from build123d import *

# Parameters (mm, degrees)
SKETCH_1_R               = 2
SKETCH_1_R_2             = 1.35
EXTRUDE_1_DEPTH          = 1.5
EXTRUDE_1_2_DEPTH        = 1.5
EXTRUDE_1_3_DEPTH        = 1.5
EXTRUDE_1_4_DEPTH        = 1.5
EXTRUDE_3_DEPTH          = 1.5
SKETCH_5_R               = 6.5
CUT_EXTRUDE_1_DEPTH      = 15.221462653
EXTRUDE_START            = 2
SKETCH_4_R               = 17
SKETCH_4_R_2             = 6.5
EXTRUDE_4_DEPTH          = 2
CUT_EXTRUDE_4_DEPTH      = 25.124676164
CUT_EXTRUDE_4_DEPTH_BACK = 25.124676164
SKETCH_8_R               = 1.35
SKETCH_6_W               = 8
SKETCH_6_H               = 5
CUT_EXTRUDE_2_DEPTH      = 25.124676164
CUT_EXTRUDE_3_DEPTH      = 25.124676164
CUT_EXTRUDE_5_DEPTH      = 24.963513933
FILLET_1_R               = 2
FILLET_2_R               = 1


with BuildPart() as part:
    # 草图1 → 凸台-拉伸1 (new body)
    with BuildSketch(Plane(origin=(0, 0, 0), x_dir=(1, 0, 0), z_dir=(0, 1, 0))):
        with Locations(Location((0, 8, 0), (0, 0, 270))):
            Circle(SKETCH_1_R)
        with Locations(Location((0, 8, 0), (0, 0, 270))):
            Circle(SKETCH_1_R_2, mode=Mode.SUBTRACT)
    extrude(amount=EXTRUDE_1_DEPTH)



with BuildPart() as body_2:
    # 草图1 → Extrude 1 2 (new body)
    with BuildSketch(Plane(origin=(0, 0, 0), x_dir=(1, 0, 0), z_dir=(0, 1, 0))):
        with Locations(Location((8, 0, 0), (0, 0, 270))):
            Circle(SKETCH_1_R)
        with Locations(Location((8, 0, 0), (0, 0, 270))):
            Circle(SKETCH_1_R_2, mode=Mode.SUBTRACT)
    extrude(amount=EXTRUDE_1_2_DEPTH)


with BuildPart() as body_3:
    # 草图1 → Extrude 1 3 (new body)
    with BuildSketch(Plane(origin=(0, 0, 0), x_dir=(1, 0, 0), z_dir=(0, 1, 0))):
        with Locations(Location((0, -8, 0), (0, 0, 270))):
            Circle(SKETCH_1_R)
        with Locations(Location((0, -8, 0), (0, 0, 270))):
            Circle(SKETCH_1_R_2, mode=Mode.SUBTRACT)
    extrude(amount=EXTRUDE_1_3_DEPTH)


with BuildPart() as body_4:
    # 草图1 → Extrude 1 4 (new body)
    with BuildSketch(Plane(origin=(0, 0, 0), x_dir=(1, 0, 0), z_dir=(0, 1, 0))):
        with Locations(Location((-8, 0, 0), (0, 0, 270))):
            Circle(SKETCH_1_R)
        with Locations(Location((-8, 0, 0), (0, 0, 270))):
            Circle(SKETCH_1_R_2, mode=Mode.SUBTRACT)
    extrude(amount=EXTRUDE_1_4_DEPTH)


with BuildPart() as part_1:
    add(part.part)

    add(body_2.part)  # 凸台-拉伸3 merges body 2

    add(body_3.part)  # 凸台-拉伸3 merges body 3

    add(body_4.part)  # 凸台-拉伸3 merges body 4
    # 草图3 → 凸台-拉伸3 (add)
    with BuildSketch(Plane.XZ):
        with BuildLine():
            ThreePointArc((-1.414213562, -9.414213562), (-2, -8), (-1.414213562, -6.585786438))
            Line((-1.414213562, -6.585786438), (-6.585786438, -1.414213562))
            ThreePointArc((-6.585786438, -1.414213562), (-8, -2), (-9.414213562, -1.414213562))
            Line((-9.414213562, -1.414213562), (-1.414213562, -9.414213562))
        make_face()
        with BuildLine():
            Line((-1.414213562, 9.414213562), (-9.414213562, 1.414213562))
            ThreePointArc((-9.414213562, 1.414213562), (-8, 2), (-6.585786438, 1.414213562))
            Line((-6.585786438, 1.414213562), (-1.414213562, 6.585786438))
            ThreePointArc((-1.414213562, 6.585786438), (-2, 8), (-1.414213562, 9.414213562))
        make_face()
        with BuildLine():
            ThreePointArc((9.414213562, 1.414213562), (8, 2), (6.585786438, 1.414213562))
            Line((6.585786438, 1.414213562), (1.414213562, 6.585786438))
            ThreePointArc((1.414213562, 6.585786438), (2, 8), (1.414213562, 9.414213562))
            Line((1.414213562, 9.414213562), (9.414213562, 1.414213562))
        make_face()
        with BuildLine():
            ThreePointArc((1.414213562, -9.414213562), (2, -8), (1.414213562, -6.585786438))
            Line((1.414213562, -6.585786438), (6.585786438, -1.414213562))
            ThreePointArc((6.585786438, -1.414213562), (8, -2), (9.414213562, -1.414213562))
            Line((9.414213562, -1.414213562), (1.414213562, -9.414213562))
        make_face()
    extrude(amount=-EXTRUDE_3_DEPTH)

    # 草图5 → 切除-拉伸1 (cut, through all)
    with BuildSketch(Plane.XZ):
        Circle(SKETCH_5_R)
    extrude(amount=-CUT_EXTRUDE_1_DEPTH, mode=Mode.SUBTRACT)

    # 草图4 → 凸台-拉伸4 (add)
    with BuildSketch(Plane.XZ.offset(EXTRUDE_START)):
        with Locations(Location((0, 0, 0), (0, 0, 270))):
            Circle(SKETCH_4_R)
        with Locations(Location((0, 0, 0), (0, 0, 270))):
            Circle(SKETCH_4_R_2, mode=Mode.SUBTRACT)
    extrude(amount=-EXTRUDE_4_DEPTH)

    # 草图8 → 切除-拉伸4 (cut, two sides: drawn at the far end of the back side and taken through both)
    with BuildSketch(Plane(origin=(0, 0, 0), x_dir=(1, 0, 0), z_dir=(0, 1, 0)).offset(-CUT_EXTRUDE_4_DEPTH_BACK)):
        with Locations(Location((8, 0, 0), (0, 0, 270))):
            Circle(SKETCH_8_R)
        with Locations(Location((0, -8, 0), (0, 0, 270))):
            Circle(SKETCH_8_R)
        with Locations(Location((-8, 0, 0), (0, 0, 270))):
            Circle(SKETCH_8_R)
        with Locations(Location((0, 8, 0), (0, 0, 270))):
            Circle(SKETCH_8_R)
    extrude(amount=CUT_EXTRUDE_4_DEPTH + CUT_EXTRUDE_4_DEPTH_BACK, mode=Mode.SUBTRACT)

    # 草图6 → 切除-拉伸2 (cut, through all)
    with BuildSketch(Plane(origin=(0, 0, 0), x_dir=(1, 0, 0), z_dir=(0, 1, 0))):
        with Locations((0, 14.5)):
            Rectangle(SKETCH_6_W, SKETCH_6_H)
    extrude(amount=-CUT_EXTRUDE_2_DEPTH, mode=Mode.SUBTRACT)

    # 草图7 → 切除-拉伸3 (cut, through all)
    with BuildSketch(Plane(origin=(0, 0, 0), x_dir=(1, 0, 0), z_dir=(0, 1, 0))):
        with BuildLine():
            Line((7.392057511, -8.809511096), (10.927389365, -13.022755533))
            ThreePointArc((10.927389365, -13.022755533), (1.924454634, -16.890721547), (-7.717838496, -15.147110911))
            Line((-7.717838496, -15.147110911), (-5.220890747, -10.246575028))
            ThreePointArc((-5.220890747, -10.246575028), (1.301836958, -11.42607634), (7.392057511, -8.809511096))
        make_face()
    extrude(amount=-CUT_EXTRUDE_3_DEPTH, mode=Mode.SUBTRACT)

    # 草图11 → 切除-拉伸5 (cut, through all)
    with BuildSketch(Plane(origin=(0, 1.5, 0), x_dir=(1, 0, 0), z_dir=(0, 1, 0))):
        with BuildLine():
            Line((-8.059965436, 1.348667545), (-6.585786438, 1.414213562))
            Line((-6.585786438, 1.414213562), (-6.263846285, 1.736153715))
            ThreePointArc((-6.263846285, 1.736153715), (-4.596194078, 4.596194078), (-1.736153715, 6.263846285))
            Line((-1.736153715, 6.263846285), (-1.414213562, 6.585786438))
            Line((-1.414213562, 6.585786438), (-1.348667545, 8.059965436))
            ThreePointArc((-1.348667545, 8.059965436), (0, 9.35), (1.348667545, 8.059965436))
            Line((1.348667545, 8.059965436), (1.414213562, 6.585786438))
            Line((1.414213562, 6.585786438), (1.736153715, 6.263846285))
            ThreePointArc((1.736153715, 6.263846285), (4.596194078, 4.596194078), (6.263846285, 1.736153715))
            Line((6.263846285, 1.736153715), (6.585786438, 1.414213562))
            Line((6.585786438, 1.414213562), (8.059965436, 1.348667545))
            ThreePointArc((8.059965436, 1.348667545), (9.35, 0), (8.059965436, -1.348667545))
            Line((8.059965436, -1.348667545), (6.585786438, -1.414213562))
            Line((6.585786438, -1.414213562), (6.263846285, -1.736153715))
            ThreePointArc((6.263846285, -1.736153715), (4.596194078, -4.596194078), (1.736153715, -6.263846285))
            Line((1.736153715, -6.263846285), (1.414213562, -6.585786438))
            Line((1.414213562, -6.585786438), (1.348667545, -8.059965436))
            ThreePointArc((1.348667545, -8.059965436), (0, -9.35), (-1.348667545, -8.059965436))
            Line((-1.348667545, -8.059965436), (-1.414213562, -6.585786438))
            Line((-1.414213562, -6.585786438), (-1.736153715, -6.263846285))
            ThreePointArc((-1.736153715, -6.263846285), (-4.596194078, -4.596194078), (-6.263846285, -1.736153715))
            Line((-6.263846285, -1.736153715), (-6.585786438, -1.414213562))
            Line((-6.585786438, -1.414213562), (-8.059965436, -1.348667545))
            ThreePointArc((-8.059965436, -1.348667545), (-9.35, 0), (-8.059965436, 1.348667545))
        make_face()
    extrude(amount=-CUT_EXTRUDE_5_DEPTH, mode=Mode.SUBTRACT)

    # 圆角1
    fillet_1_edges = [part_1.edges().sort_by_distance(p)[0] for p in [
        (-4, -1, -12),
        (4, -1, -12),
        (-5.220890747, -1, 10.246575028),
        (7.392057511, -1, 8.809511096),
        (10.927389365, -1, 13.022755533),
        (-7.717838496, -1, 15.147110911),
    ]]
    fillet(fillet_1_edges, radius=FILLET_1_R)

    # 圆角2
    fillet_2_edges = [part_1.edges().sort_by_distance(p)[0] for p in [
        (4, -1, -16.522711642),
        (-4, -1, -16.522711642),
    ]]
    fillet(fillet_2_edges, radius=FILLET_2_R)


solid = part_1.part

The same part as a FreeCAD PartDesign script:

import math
import FreeCAD as App
import Part
import Sketcher
Q = App.Units.Quantity


def edges_at(feature, points):
    """Names of the edges that pass closest to the given points."""
    edges = feature.Shape.Edges
    near = lambda p: min(range(len(edges)), key=lambda i: edges[i].distToShape(Part.Vertex(*p))[0])
    return sorted({f"Edge{near(p) + 1}" for p in points})


def add_polygon(sketch, points):
    """Adds a closed chain of lines whose ends are joined by coincident constraints."""
    first, n = sketch.GeometryCount, len(points)
    for a, b in zip(points, points[1:] + points[:1]):
        sketch.addGeometry(Part.LineSegment(App.Vector(*a, 0), App.Vector(*b, 0)), False)
    for i in range(n):
        sketch.addConstraint(Sketcher.Constraint("Coincident", first + i, 2, first + (i + 1) % n, 1))

doc = App.newDocument("Part")
body = doc.addObject("PartDesign::Body", "Body")

sketch1 = body.newObject("Sketcher::SketchObject", "Sketch")
sketch1.AttachmentSupport = (doc.getObject("XZ_Plane"), [""])
sketch1.MapMode = "FlatFace"
sketch1.addGeometry([
    Part.Circle(App.Vector(0, -8, 0), App.Vector(0, 0, 1), 2),
    Part.Circle(App.Vector(0, -8, 0), App.Vector(0, 0, 1), 1.35),
], False)
sketch1.addConstraint([
    Sketcher.Constraint("Coincident", 1, 3, 0, 3),
    Sketcher.Constraint("PointOnObject", 0, 3, -2),
    Sketcher.Constraint("Diameter", 0, 4.0),
    Sketcher.Constraint("Diameter", 1, 2.7),
    Sketcher.Constraint("DistanceY", 0, 3, -1, 1, 8.0),
])
pad1 = body.newObject("PartDesign::Pad", "Pad")
pad1.Profile = sketch1
pad1.Length = 1.5
pad1.Reversed = True
body2 = doc.addObject("PartDesign::Body", "Body001")

sketch2 = body2.newObject("Sketcher::SketchObject", "Sketch001")
sketch2.AttachmentSupport = (doc.getObject("XZ_Plane001"), [""])
sketch2.MapMode = "FlatFace"
sketch2.addGeometry([
    Part.Circle(App.Vector(8, 0, 0), App.Vector(0, 0, 1), 2),
    Part.Circle(App.Vector(8, 0, 0), App.Vector(0, 0, 1), 1.35),
], False)
sketch2.addConstraint([
    Sketcher.Constraint("Coincident", 1, 3, 0, 3),
    Sketcher.Constraint("PointOnObject", 0, 3, -1),
    Sketcher.Constraint("Diameter", 0, 4.0),
    Sketcher.Constraint("Diameter", 1, 2.7),
    Sketcher.Constraint("DistanceX", -1, 1, 0, 3, 8.0),
])
pad2 = body2.newObject("PartDesign::Pad", "Pad001")
pad2.Profile = sketch2
pad2.Length = 1.5
pad2.Reversed = True
body3 = doc.addObject("PartDesign::Body", "Body002")

sketch3 = body3.newObject("Sketcher::SketchObject", "Sketch002")
sketch3.AttachmentSupport = (doc.getObject("XZ_Plane002"), [""])
sketch3.MapMode = "FlatFace"
sketch3.addGeometry([
    Part.Circle(App.Vector(0, 8, 0), App.Vector(0, 0, 1), 2),
    Part.Circle(App.Vector(0, 8, 0), App.Vector(0, 0, 1), 1.35),
], False)
sketch3.addConstraint([
    Sketcher.Constraint("Coincident", 1, 3, 0, 3),
    Sketcher.Constraint("PointOnObject", 0, 3, -2),
    Sketcher.Constraint("Diameter", 0, 4.0),
    Sketcher.Constraint("Diameter", 1, 2.7),
    Sketcher.Constraint("DistanceY", -1, 1, 0, 3, 8.0),
])
pad3 = body3.newObject("PartDesign::Pad", "Pad002")
pad3.Profile = sketch3
pad3.Length = 1.5
pad3.Reversed = True
body4 = doc.addObject("PartDesign::Body", "Body003")

sketch4 = body4.newObject("Sketcher::SketchObject", "Sketch003")
sketch4.AttachmentSupport = (doc.getObject("XZ_Plane003"), [""])
sketch4.MapMode = "FlatFace"
sketch4.addGeometry([
    Part.Circle(App.Vector(-8, 0, 0), App.Vector(0, 0, 1), 2),
    Part.Circle(App.Vector(-8, 0, 0), App.Vector(0, 0, 1), 1.35),
], False)
sketch4.addConstraint([
    Sketcher.Constraint("Coincident", 1, 3, 0, 3),
    Sketcher.Constraint("PointOnObject", 0, 3, -1),
    Sketcher.Constraint("Diameter", 0, 4.0),
    Sketcher.Constraint("Diameter", 1, 2.7),
    Sketcher.Constraint("DistanceX", 0, 3, -1, 1, 8.0),
])
pad4 = body4.newObject("PartDesign::Pad", "Pad003")
pad4.Profile = sketch4
pad4.Length = 1.5
pad4.Reversed = True
body.AllowCompound = True
doc.recompute()

boolean = body.newObject("PartDesign::Boolean", "Boolean")
boolean.Type = "Fuse"
boolean.addObjects([body2])
doc.recompute()

boolean2 = body.newObject("PartDesign::Boolean", "Boolean001")
boolean2.Type = "Fuse"
boolean2.addObjects([body3])
doc.recompute()

boolean3 = body.newObject("PartDesign::Boolean", "Boolean002")
boolean3.Type = "Fuse"
boolean3.addObjects([body4])

sketch5 = body.newObject("Sketcher::SketchObject", "Sketch004")
sketch5.AttachmentSupport = (doc.getObject("XZ_Plane"), [""])
sketch5.MapMode = "FlatFace"
sketch5.addGeometry([
    Part.ArcOfCircle(Part.Circle(App.Vector(0, -8, 0), App.Vector(0, 0, 1), 2), math.radians(135), math.radians(225)),
    Part.LineSegment(App.Vector(-1.414214, -6.585786, 0), App.Vector(-6.585786, -1.414214, 0)),
    Part.ArcOfCircle(Part.Circle(App.Vector(-8, 0, 0), App.Vector(0, 0, 1), 2), math.radians(-135), math.radians(-45)),
    Part.LineSegment(App.Vector(-9.414214, -1.414214, 0), App.Vector(-1.414214, -9.414214, 0)),
    Part.LineSegment(App.Vector(-1.414214, 9.414214, 0), App.Vector(-9.414214, 1.414214, 0)),
    Part.ArcOfCircle(Part.Circle(App.Vector(-8, 0, 0), App.Vector(0, 0, 1), 2), math.radians(45), math.radians(135)),
    Part.LineSegment(App.Vector(-6.585786, 1.414214, 0), App.Vector(-1.414214, 6.585786, 0)),
    Part.ArcOfCircle(Part.Circle(App.Vector(0, 8, 0), App.Vector(0, 0, 1), 2), math.radians(135), math.radians(225)),
    Part.ArcOfCircle(Part.Circle(App.Vector(8, 0, 0), App.Vector(0, 0, 1), 2), math.radians(45), math.radians(135)),
    Part.LineSegment(App.Vector(9.414214, 1.414214, 0), App.Vector(1.414214, 9.414214, 0)),
    Part.ArcOfCircle(Part.Circle(App.Vector(0, 8, 0), App.Vector(0, 0, 1), 2), math.radians(-45), math.radians(45)),
    Part.LineSegment(App.Vector(1.414214, 6.585786, 0), App.Vector(6.585786, 1.414214, 0)),
    Part.ArcOfCircle(Part.Circle(App.Vector(0, -8, 0), App.Vector(0, 0, 1), 2), math.radians(-45), math.radians(45)),
    Part.LineSegment(App.Vector(1.414214, -9.414214, 0), App.Vector(9.414214, -1.414214, 0)),
    Part.ArcOfCircle(Part.Circle(App.Vector(8, 0, 0), App.Vector(0, 0, 1), 2), math.radians(-135), math.radians(-45)),
    Part.LineSegment(App.Vector(6.585786, -1.414214, 0), App.Vector(1.414214, -6.585786, 0)),
], False)
sketch5.addConstraint([
    Sketcher.Constraint("Coincident", 0, 1, 1, 1),
    Sketcher.Constraint("Coincident", 1, 2, 2, 2),
    Sketcher.Constraint("Tangent", 2, 1, 3, 1),
    Sketcher.Constraint("Tangent", 3, 2, 0, 2),
    Sketcher.Constraint("Tangent", 4, 2, 5, 2),
    Sketcher.Constraint("Coincident", 5, 1, 6, 1),
    Sketcher.Constraint("Coincident", 6, 2, 7, 2),
    Sketcher.Constraint("Tangent", 7, 1, 4, 1),
    Sketcher.Constraint("Tangent", 8, 1, 9, 1),
    Sketcher.Constraint("Tangent", 9, 2, 10, 2),
    Sketcher.Constraint("Coincident", 10, 1, 11, 1),
    Sketcher.Constraint("Coincident", 11, 2, 8, 2),
    Sketcher.Constraint("Tangent", 12, 1, 13, 1),
    Sketcher.Constraint("Tangent", 13, 2, 14, 2),
    Sketcher.Constraint("Coincident", 14, 1, 15, 1),
    Sketcher.Constraint("Coincident", 15, 2, 12, 2),
    Sketcher.Constraint("Coincident", 5, 3, 2, 3),
    Sketcher.Constraint("Coincident", 10, 3, 7, 3),
    Sketcher.Constraint("Coincident", 12, 3, 0, 3),
    Sketcher.Constraint("Coincident", 14, 3, 8, 3),
    Sketcher.Constraint("Equal", 0, 2),
    Sketcher.Constraint("Equal", 2, 5),
    Sketcher.Constraint("Equal", 5, 7),
    Sketcher.Constraint("Equal", 7, 8),
    Sketcher.Constraint("Equal", 8, 10),
    Sketcher.Constraint("Equal", 10, 12),
    Sketcher.Constraint("Equal", 12, 14),
    Sketcher.Constraint("Symmetric", 0, 3, 7, 3, -1, 1),
    Sketcher.Constraint("Symmetric", 2, 3, 8, 3, -1, 1),
    Sketcher.Constraint("Symmetric", 4, 2, 8, 1, -2),
    Sketcher.Constraint("Parallel", 1, 3),
    Sketcher.Constraint("Perpendicular", 3, 4),
    Sketcher.Constraint("Parallel", 4, 6),
    Sketcher.Constraint("Parallel", 9, 11),
    Sketcher.Constraint("Parallel", 13, 15),
    Sketcher.Constraint("Horizontal", 1, 2, 2, 1),
    Sketcher.Constraint("Horizontal", 4, 2, 5, 1),
    Sketcher.Constraint("Horizontal", 6, 2, 10, 1),
    Sketcher.Constraint("Horizontal", 13, 2, 14, 1),
    Sketcher.Constraint("Radius", 0, 2.0),
    Sketcher.Constraint("DistanceY", 0, 3, -1, 1, 8.0),
])
pad5 = body.newObject("PartDesign::Pad", "Pad004")
pad5.Profile = sketch5
pad5.Length = 1.5
pad5.Reversed = True

sketch6 = body.newObject("Sketcher::SketchObject", "Sketch005")
sketch6.AttachmentSupport = (doc.getObject("XZ_Plane"), [""])
sketch6.MapMode = "FlatFace"
sketch6.addGeometry(Part.Circle(App.Vector(0, 0, 0), App.Vector(0, 0, 1), 6.5), False)
sketch6.addConstraint([
    Sketcher.Constraint("Coincident", 0, 3, -1, 1),
    Sketcher.Constraint("Diameter", 0, 13.0),
])
pocket1 = body.newObject("PartDesign::Pocket", "Pocket")
pocket1.Profile = sketch6
pocket1.Type = "ThroughAll"

sketch7 = body.newObject("Sketcher::SketchObject", "Sketch006")
sketch7.AttachmentSupport = (doc.getObject("XZ_Plane"), [""])
sketch7.MapMode = "FlatFace"
sketch7.AttachmentOffset = App.Placement(App.Vector(0, 0, 2), App.Rotation())
sketch7.addGeometry([
    Part.Circle(App.Vector(0, 0, 0), App.Vector(0, 0, 1), 17),
    Part.Circle(App.Vector(0, 0, 0), App.Vector(0, 0, 1), 6.5),
], False)
sketch7.addConstraint([
    Sketcher.Constraint("Coincident", 0, 3, -1, 1),
    Sketcher.Constraint("Coincident", 1, 3, -1, 1),
    Sketcher.Constraint("Diameter", 0, 34.0),
    Sketcher.Constraint("Diameter", 1, 13.0),
])
pad6 = body.newObject("PartDesign::Pad", "Pad005")
pad6.Profile = sketch7
pad6.Length = 2
pad6.Reversed = True

sketch8 = body.newObject("Sketcher::SketchObject", "Sketch007")
sketch8.AttachmentSupport = (doc.getObject("XZ_Plane"), [""])
sketch8.MapMode = "FlatFace"
sketch8.addGeometry([
    Part.Circle(App.Vector(8, 0, 0), App.Vector(0, 0, 1), 1.35),
    Part.Circle(App.Vector(0, 8, 0), App.Vector(0, 0, 1), 1.35),
    Part.Circle(App.Vector(-8, 0, 0), App.Vector(0, 0, 1), 1.35),
    Part.Circle(App.Vector(0, -8, 0), App.Vector(0, 0, 1), 1.35),
], False)
sketch8.addConstraint([
    Sketcher.Constraint("Equal", 0, 1),
    Sketcher.Constraint("Equal", 1, 2),
    Sketcher.Constraint("Equal", 2, 3),
    Sketcher.Constraint("Symmetric", 0, 3, 2, 3, -1, 1),
    Sketcher.Constraint("Symmetric", 1, 3, 3, 3, -1, 1),
    Sketcher.Constraint("PointOnObject", 0, 3, -1),
    Sketcher.Constraint("PointOnObject", 1, 3, -2),
    Sketcher.Constraint("Diameter", 0, 2.7),
    Sketcher.Constraint("DistanceX", -1, 1, 0, 3, 8.0),
    Sketcher.Constraint("DistanceY", -1, 1, 1, 3, 8.0),
])
pocket2 = body.newObject("PartDesign::Pocket", "Pocket001")
pocket2.Profile = sketch8
pocket2.Type = "ThroughAll"
pocket2.Midplane = True

sketch9 = body.newObject("Sketcher::SketchObject", "Sketch008")
sketch9.AttachmentSupport = (doc.getObject("XZ_Plane"), [""])
sketch9.MapMode = "FlatFace"
add_polygon(sketch9, [(-4, -17), (-4, -12), (4, -12), (4, -17)])
sketch9.addConstraint([
    Sketcher.Constraint("Vertical", 0),
    Sketcher.Constraint("Horizontal", 1),
    Sketcher.Constraint("Vertical", 2),
    Sketcher.Constraint("Horizontal", 3),
    Sketcher.Constraint("DistanceX", 1, 1, 1, 2, 8.0),
    Sketcher.Constraint("DistanceY", 0, 1, 0, 2, 5.0),
    Sketcher.Constraint("DistanceX", 0, 2, -1, 1, 4.0),
    Sketcher.Constraint("DistanceY", 0, 2, -1, 1, 12.0),
])
pocket3 = body.newObject("PartDesign::Pocket", "Pocket002")
pocket3.Profile = sketch9
pocket3.Type = "ThroughAll"
pocket3.Reversed = True

sketch10 = body.newObject("Sketcher::SketchObject", "Sketch009")
sketch10.AttachmentSupport = (doc.getObject("XZ_Plane"), [""])
sketch10.MapMode = "FlatFace"
sketch10.addGeometry([
    Part.LineSegment(App.Vector(10.927389, 13.022756, 0), App.Vector(7.392058, 8.809511, 0)),
    Part.ArcOfCircle(Part.Circle(App.Vector(0, 0, 0), App.Vector(0, 0, 1), 11.5), math.radians(50), math.radians(117)),
    Part.LineSegment(App.Vector(-5.220891, 10.246575, 0), App.Vector(-7.717838, 15.147111, 0)),
    Part.ArcOfCircle(Part.Circle(App.Vector(0, 0, 0), App.Vector(0, 0, 1), 17), math.radians(50), math.radians(117)),
], False)
sketch10.addConstraint([
    Sketcher.Constraint("Coincident", 0, 2, 1, 1),
    Sketcher.Constraint("Coincident", 1, 2, 2, 1),
    Sketcher.Constraint("Coincident", 2, 2, 3, 2),
    Sketcher.Constraint("Coincident", 3, 1, 0, 1),
    Sketcher.Constraint("Coincident", 1, 3, -1, 1),
    Sketcher.Constraint("Coincident", 3, 3, -1, 1),
    Sketcher.Constraint("Radius", 3, 17.0),
    Sketcher.Constraint("Radius", 1, 11.5),
    Sketcher.Constraint("Angle", 0, Q("-130 deg")),
    Sketcher.Constraint("Angle", 2, Q("117 deg")),
    Sketcher.Constraint("DistanceY", 0, 2, 2, 2, 6.3376),
    Sketcher.Constraint("DistanceY", -1, 1, 0, 2, 8.809511),
])
pocket4 = body.newObject("PartDesign::Pocket", "Pocket003")
pocket4.Profile = sketch10
pocket4.Type = "ThroughAll"
pocket4.Reversed = True

sketch11 = body.newObject("Sketcher::SketchObject", "Sketch010")
sketch11.AttachmentSupport = (doc.getObject("XZ_Plane"), [""])
sketch11.MapMode = "FlatFace"
sketch11.AttachmentOffset = App.Placement(App.Vector(0, 0, -1.5), App.Rotation())
sketch11.addGeometry([
    Part.LineSegment(App.Vector(-6.585786, -1.414214, 0), App.Vector(-8.059965, -1.348668, 0)),
    Part.ArcOfCircle(Part.Circle(App.Vector(-8, 0, 0), App.Vector(0, 0, 1), 1.35), math.radians(92.54585), math.radians(267.45415)),
    Part.LineSegment(App.Vector(-8.059965, 1.348668, 0), App.Vector(-6.585786, 1.414214, 0)),
    Part.LineSegment(App.Vector(-6.585786, 1.414214, 0), App.Vector(-6.263846, 1.736154, 0)),
    Part.ArcOfCircle(Part.Circle(App.Vector(0, 0, 0), App.Vector(0, 0, 1), 6.5), math.radians(105.491807), math.radians(164.508193)),
    Part.LineSegment(App.Vector(-1.736154, 6.263846, 0), App.Vector(-1.414214, 6.585786, 0)),
    Part.LineSegment(App.Vector(-1.414214, 6.585786, 0), App.Vector(-1.348668, 8.059965, 0)),
    Part.ArcOfCircle(Part.Circle(App.Vector(0, 8, 0), App.Vector(0, 0, 1), 1.35), math.radians(2.54585), math.radians(177.45415)),
    Part.LineSegment(App.Vector(1.348668, 8.059965, 0), App.Vector(1.414214, 6.585786, 0)),
    Part.LineSegment(App.Vector(1.414214, 6.585786, 0), App.Vector(1.736154, 6.263846, 0)),
    Part.ArcOfCircle(Part.Circle(App.Vector(0, 0, 0), App.Vector(0, 0, 1), 6.5), math.radians(15.491807), math.radians(74.508193)),
    Part.LineSegment(App.Vector(6.263846, 1.736154, 0), App.Vector(6.585786, 1.414214, 0)),
    Part.LineSegment(App.Vector(6.585786, 1.414214, 0), App.Vector(8.059965, 1.348668, 0)),
    Part.ArcOfCircle(Part.Circle(App.Vector(8, 0, 0), App.Vector(0, 0, 1), 1.35), math.radians(-87.45415), math.radians(87.45415)),
    Part.LineSegment(App.Vector(8.059965, -1.348668, 0), App.Vector(6.585786, -1.414214, 0)),
    Part.LineSegment(App.Vector(6.585786, -1.414214, 0), App.Vector(6.263846, -1.736154, 0)),
    Part.ArcOfCircle(Part.Circle(App.Vector(0, 0, 0), App.Vector(0, 0, 1), 6.5), math.radians(-74.508193), math.radians(-15.491807)),
    Part.LineSegment(App.Vector(1.736154, -6.263846, 0), App.Vector(1.414214, -6.585786, 0)),
    Part.LineSegment(App.Vector(1.414214, -6.585786, 0), App.Vector(1.348668, -8.059965, 0)),
    Part.ArcOfCircle(Part.Circle(App.Vector(0, -8, 0), App.Vector(0, 0, 1), 1.35), math.radians(-177.45415), math.radians(-2.54585)),
    Part.LineSegment(App.Vector(-1.348668, -8.059965, 0), App.Vector(-1.414214, -6.585786, 0)),
    Part.LineSegment(App.Vector(-1.414214, -6.585786, 0), App.Vector(-1.736154, -6.263846, 0)),
    Part.ArcOfCircle(Part.Circle(App.Vector(0, 0, 0), App.Vector(0, 0, 1), 6.5), math.radians(-164.508193), math.radians(-105.491807)),
    Part.LineSegment(App.Vector(-6.263846, -1.736154, 0), App.Vector(-6.585786, -1.414214, 0)),
], False)
sketch11.addConstraint([
    Sketcher.Constraint("Tangent", 0, 2, 1, 2),
    Sketcher.Constraint("Tangent", 1, 1, 2, 1),
    Sketcher.Constraint("Coincident", 2, 2, 3, 1),
    Sketcher.Constraint("Coincident", 3, 2, 4, 2),
    Sketcher.Constraint("Coincident", 4, 1, 5, 1),
    Sketcher.Constraint("Coincident", 5, 2, 6, 1),
    Sketcher.Constraint("Tangent", 6, 2, 7, 2),
    Sketcher.Constraint("Tangent", 7, 1, 8, 1),
    Sketcher.Constraint("Coincident", 8, 2, 9, 1),
    Sketcher.Constraint("Coincident", 9, 2, 10, 2),
    Sketcher.Constraint("Coincident", 10, 1, 11, 1),
    Sketcher.Constraint("Coincident", 11, 2, 12, 1),
    Sketcher.Constraint("Tangent", 12, 2, 13, 2),
    Sketcher.Constraint("Tangent", 13, 1, 14, 1),
    Sketcher.Constraint("Coincident", 14, 2, 15, 1),
    Sketcher.Constraint("Coincident", 15, 2, 16, 2),
    Sketcher.Constraint("Coincident", 16, 1, 17, 1),
    Sketcher.Constraint("Coincident", 17, 2, 18, 1),
    Sketcher.Constraint("Tangent", 18, 2, 19, 2),
    Sketcher.Constraint("Tangent", 19, 1, 20, 1),
    Sketcher.Constraint("Coincident", 20, 2, 21, 1),
    Sketcher.Constraint("Coincident", 21, 2, 22, 2),
    Sketcher.Constraint("Coincident", 22, 1, 23, 1),
    Sketcher.Constraint("Coincident", 23, 2, 0, 1),
    Sketcher.Constraint("Coincident", 4, 3, -1, 1),
    Sketcher.Constraint("Coincident", 10, 3, -1, 1),
    Sketcher.Constraint("Coincident", 16, 3, -1, 1),
    Sketcher.Constraint("Coincident", 22, 3, -1, 1),
    Sketcher.Constraint("Equal", 1, 7),
    Sketcher.Constraint("Equal", 4, 10),
    Sketcher.Constraint("Equal", 7, 13),
    Sketcher.Constraint("Equal", 10, 16),
    Sketcher.Constraint("Equal", 13, 19),
    Sketcher.Constraint("Equal", 16, 22),
    Sketcher.Constraint("Symmetric", 1, 3, 13, 3, -1, 1),
    Sketcher.Constraint("Symmetric", 7, 3, 19, 3, -1, 1),
    Sketcher.Constraint("Symmetric", 2, 2, 14, 2, -1, 1),
    Sketcher.Constraint("Symmetric", 5, 2, 17, 2, -1, 1),
    Sketcher.Constraint("Symmetric", 8, 2, 20, 2, -1, 1),
    Sketcher.Constraint("Symmetric", 11, 2, 23, 2, -1, 1),
    Sketcher.Constraint("Symmetric", 6, 2, 7, 1, -2),
    Sketcher.Constraint("Symmetric", 2, 2, 11, 2, -2),
    Sketcher.Constraint("PointOnObject", 1, 3, -1),
    Sketcher.Constraint("Parallel", 3, 5),
    Sketcher.Constraint("Perpendicular", 0, 6),
    Sketcher.Constraint("Perpendicular", 5, 9),
    Sketcher.Constraint("Parallel", 9, 11),
    Sketcher.Constraint("Perpendicular", 11, 15),
    Sketcher.Constraint("Parallel", 15, 17),
    Sketcher.Constraint("Perpendicular", 17, 21),
    Sketcher.Constraint("Parallel", 21, 23),
    Sketcher.Constraint("Horizontal", 5, 2, 8, 2),
    Sketcher.Constraint("Horizontal", 4, 1, 9, 2),
    Sketcher.Constraint("Equal", 3, 5),
    Sketcher.Constraint("Equal", 2, 6),
    Sketcher.Constraint("Radius", 4, 6.5),
    Sketcher.Constraint("Radius", 1, 1.35),
    Sketcher.Constraint("DistanceX", 1, 3, -1, 1, 8.0),
    Sketcher.Constraint("DistanceX", 1, 1, 2, 2, 1.474179),
    Sketcher.Constraint("DistanceY", 0, 2, 2, 2, 2.762881),
])
pocket5 = body.newObject("PartDesign::Pocket", "Pocket004")
pocket5.Profile = sketch11
pocket5.Type = "ThroughAll"
pocket5.Reversed = True
doc.recompute()

fillet = body.newObject("PartDesign::Fillet", "Fillet")
fillet.Base = (pocket5, edges_at(pocket5, [
    (-4, -1, -12),
    (4, -1, -12),
    (-5.221, -1, 10.247),
    (7.392, -1, 8.81),
    (10.927, -1, 13.023),
    (-7.718, -1, 15.147),
]))
fillet.Radius = 2
doc.recompute()

fillet2 = body.newObject("PartDesign::Fillet", "Fillet001")
fillet2.Base = (fillet, edges_at(fillet, [(4, -1, -16.523), (-4, -1, -16.523)]))
fillet2.Radius = 1

doc.recompute()
